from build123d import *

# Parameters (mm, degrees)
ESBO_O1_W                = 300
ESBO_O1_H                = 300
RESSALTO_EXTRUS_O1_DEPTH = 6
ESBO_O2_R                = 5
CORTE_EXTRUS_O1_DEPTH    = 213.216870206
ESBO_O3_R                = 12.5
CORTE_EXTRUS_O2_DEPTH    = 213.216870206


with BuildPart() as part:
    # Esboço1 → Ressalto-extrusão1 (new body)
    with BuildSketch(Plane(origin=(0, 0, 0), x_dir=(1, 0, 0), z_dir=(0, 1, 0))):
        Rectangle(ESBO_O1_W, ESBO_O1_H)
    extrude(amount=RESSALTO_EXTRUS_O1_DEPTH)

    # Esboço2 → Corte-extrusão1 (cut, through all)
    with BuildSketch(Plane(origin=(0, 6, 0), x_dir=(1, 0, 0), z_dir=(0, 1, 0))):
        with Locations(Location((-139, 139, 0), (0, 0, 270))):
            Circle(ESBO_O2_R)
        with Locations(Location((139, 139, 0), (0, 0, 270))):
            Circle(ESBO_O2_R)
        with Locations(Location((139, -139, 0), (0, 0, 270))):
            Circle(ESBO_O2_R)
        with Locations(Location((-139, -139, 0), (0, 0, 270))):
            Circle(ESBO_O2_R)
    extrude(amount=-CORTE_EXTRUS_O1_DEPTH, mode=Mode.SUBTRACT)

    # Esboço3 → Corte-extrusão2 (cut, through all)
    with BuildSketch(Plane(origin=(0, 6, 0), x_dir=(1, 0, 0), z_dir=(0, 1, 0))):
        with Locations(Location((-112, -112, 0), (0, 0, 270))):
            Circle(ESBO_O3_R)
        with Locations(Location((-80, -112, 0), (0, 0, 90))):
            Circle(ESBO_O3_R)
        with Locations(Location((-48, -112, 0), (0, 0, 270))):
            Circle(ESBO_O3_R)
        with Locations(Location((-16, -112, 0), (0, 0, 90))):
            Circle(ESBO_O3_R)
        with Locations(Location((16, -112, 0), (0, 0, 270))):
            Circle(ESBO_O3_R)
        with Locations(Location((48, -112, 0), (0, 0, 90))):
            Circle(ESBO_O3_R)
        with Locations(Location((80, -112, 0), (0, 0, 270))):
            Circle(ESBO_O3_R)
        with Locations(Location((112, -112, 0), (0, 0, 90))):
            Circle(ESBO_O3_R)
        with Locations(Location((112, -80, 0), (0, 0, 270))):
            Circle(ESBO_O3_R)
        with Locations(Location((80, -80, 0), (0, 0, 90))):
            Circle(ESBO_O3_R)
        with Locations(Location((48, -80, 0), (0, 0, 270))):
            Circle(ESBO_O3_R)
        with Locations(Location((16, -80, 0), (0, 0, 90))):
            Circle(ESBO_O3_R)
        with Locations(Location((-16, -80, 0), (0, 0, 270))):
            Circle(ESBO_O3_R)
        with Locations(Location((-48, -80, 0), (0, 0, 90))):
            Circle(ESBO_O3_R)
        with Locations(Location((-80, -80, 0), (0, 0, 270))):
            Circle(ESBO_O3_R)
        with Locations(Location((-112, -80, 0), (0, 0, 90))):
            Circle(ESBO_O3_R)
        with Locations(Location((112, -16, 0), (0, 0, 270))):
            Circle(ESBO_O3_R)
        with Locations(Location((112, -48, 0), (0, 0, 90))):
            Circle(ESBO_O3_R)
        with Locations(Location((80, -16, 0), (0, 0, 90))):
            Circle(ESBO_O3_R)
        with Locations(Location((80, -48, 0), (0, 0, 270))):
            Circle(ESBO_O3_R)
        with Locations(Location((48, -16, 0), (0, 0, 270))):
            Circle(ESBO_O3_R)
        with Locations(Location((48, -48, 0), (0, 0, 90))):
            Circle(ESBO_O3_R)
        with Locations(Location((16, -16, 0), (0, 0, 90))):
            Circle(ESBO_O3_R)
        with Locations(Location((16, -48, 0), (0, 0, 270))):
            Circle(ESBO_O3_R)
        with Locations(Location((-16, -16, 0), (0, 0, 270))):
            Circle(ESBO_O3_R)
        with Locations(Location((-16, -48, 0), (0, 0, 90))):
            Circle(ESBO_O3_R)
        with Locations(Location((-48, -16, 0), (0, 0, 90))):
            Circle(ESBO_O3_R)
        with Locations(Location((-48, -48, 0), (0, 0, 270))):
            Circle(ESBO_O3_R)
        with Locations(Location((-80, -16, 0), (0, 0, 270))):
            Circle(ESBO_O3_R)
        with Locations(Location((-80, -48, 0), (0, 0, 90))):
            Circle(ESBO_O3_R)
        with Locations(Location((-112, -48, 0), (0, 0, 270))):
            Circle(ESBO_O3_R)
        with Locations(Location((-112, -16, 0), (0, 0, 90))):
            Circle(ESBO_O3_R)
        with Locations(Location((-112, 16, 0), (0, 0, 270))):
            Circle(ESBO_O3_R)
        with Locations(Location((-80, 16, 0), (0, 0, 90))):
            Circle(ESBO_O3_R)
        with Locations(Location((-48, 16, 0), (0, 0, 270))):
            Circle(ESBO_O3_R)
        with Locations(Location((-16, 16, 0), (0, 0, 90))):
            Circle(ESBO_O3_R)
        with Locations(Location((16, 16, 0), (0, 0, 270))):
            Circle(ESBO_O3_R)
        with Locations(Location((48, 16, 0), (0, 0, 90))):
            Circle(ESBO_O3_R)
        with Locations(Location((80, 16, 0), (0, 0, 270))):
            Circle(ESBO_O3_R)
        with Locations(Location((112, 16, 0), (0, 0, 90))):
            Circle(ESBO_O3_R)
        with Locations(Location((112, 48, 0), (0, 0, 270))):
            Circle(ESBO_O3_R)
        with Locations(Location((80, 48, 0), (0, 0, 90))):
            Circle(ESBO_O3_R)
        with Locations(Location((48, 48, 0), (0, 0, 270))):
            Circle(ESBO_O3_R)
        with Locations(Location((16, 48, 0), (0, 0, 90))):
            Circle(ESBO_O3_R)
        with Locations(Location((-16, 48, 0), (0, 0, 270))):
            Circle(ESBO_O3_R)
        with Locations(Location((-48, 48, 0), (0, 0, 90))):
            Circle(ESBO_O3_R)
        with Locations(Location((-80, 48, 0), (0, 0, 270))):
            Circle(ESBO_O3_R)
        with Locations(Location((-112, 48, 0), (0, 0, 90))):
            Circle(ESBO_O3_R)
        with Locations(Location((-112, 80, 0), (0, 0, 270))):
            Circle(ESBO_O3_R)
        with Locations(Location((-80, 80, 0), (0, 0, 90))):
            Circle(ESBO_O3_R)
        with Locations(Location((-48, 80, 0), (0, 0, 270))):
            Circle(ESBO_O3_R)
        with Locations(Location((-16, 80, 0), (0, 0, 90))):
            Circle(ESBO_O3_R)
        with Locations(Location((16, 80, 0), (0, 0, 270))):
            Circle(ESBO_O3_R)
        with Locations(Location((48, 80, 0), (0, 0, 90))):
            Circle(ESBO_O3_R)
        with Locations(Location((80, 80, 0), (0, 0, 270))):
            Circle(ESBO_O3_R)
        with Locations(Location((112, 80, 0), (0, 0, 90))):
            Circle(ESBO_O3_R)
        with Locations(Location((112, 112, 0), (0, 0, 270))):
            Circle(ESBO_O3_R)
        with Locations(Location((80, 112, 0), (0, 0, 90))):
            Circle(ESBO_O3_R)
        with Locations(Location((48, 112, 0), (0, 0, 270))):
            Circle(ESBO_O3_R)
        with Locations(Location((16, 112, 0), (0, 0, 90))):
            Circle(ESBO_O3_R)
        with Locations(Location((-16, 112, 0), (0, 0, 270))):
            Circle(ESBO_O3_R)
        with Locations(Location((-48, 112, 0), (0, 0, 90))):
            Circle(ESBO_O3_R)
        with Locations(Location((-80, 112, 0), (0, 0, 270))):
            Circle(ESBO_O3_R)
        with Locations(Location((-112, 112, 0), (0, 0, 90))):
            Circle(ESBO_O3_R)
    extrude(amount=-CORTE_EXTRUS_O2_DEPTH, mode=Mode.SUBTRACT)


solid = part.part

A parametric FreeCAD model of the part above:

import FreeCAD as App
import Part
import Sketcher

V = App.Vector
Q = App.Units.Quantity


def add_polygon(sketch, points):
    """Adds a closed chain of lines whose ends are joined by coincident constraints."""
    first, n = sketch.GeometryCount, len(points)
    for a, b in zip(points, points[1:] + points[:1]):
        sketch.addGeometry(Part.LineSegment(App.Vector(*a, 0), App.Vector(*b, 0)), False)
    for i in range(n):
        sketch.addConstraint(Sketcher.Constraint("Coincident", first + i, 2, first + (i + 1) % n, 1))

doc = App.newDocument("Part")
body = doc.addObject("PartDesign::Body", "Body")

# Sketch on XZ plane
sketch1 = body.newObject("Sketcher::SketchObject", "Sketch")
sketch1.AttachmentSupport = (doc.getObject("XZ_Plane"), [""])
sketch1.MapMode = "FlatFace"
add_polygon(sketch1, [(-150, -150), (-150, 150), (150, 150), (150, -150)])  # lines 0-3
sketch1.addConstraint(Sketcher.Constraint("Vertical", 0))
sketch1.addConstraint(Sketcher.Constraint("Horizontal", 1))
sketch1.addConstraint(Sketcher.Constraint("Vertical", 2))
sketch1.addConstraint(Sketcher.Constraint("Horizontal", 3))
sketch1.addConstraint(Sketcher.Constraint("Symmetric", 0, 2, 2, 2, -1, 1))
sketch1.addConstraint(Sketcher.Constraint("Equal", 3, 0))
sketch1.addConstraint(Sketcher.Constraint("DistanceX", 1, 1, 1, 2, Q("300 mm")))
pad1 = body.newObject("PartDesign::Pad", "Pad")
pad1.Profile = sketch1
pad1.Length = 6
pad1.Reversed = True

# Sketch on XZ plane
sketch2 = body.newObject("Sketcher::SketchObject", "Sketch001")
sketch2.AttachmentSupport = (doc.getObject("XZ_Plane"), [""])
sketch2.MapMode = "FlatFace"
sketch2.AttachmentOffset = App.Placement(V(0, 0, -6), App.Rotation())
sketch2.addGeometry(Part.Circle(V(-139, -139, 0), V(0, 0, 1), 5), False)
sketch2.addGeometry(Part.Circle(V(139, -139, 0), V(0, 0, 1), 5), False)
sketch2.addGeometry(Part.Circle(V(139, 139, 0), V(0, 0, 1), 5), False)
sketch2.addGeometry(Part.Circle(V(-139, 139, 0), V(0, 0, 1), 5), False)
sketch2.addConstraint(Sketcher.Constraint("Equal", 0, 1))
sketch2.addConstraint(Sketcher.Constraint("Equal", 1, 2))
sketch2.addConstraint(Sketcher.Constraint("Equal", 2, 3))
sketch2.addConstraint(Sketcher.Constraint("Symmetric", 0, 3, 2, 3, -1, 1))
sketch2.addConstraint(Sketcher.Constraint("Symmetric", 1, 3, 3, 3, -1, 1))
sketch2.addConstraint(Sketcher.Constraint("Symmetric", 0, 3, 1, 3, -2))
sketch2.addConstraint(Sketcher.Constraint("Diameter", 0, Q("10 mm")))
sketch2.addConstraint(Sketcher.Constraint("DistanceX", 0, 3, -1, 1, Q("139 mm")))
sketch2.addConstraint(Sketcher.Constraint("DistanceY", 0, 3, -1, 1, Q("139 mm")))
pocket1 = body.newObject("PartDesign::Pocket", "Pocket")
pocket1.Profile = sketch2
pocket1.Type = "ThroughAll"
pocket1.Reversed = True

# Sketch on XZ plane
sketch3 = body.newObject("Sketcher::SketchObject", "Sketch002")
sketch3.AttachmentSupport = (doc.getObject("XZ_Plane"), [""])
sketch3.MapMode = "FlatFace"
sketch3.AttachmentOffset = App.Placement(V(0, 0, -6), App.Rotation())
sketch3.addGeometry(Part.Circle(V(-112, 112, 0), V(0, 0, 1), 12), False)
sketch3.addGeometry(Part.Circle(V(-80, 112, 0), V(0, 0, 1), 12), False)
sketch3.addGeometry(Part.Circle(V(-48, 112, 0), V(0, 0, 1), 12), False)
sketch3.addGeometry(Part.Circle(V(-16, 112, 0), V(0, 0, 1), 12), False)
sketch3.addGeometry(Part.Circle(V(16, 112, 0), V(0, 0, 1), 12), False)
sketch3.addGeometry(Part.Circle(V(48, 112, 0), V(0, 0, 1), 12), False)
sketch3.addGeometry(Part.Circle(V(80, 112, 0), V(0, 0, 1), 12), False)
sketch3.addGeometry(Part.Circle(V(112, 112, 0), V(0, 0, 1), 12), False)
sketch3.addGeometry(Part.Circle(V(112, 80, 0), V(0, 0, 1), 12), False)
sketch3.addGeometry(Part.Circle(V(80, 80, 0), V(0, 0, 1), 12), False)
sketch3.addGeometry(Part.Circle(V(48, 80, 0), V(0, 0, 1), 12), False)
sketch3.addGeometry(Part.Circle(V(16, 80, 0), V(0, 0, 1), 12), False)
sketch3.addGeometry(Part.Circle(V(-16, 80, 0), V(0, 0, 1), 12), False)
sketch3.addGeometry(Part.Circle(V(-48, 80, 0), V(0, 0, 1), 12), False)
sketch3.addGeometry(Part.Circle(V(-80, 80, 0), V(0, 0, 1), 12), False)
sketch3.addGeometry(Part.Circle(V(-112, 80, 0), V(0, 0, 1), 12), False)
sketch3.addGeometry(Part.Circle(V(112, 16, 0), V(0, 0, 1), 12), False)
sketch3.addGeometry(Part.Circle(V(112, 48, 0), V(0, 0, 1), 12), False)
sketch3.addGeometry(Part.Circle(V(80, 16, 0), V(0, 0, 1), 12), False)
sketch3.addGeometry(Part.Circle(V(80, 48, 0), V(0, 0, 1), 12), False)
sketch3.addGeometry(Part.Circle(V(48, 16, 0), V(0, 0, 1), 12), False)
sketch3.addGeometry(Part.Circle(V(48, 48, 0), V(0, 0, 1), 12), False)
sketch3.addGeometry(Part.Circle(V(16, 16, 0), V(0, 0, 1), 12), False)
sketch3.addGeometry(Part.Circle(V(16, 48, 0), V(0, 0, 1), 12), False)
sketch3.addGeometry(Part.Circle(V(-16, 16, 0), V(0, 0, 1), 12), False)
sketch3.addGeometry(Part.Circle(V(-16, 48, 0), V(0, 0, 1), 12), False)
sketch3.addGeometry(Part.Circle(V(-48, 16, 0), V(0, 0, 1), 12), False)
sketch3.addGeometry(Part.Circle(V(-48, 48, 0), V(0, 0, 1), 12), False)
sketch3.addGeometry(Part.Circle(V(-80, 16, 0), V(0, 0, 1), 12), False)
sketch3.addGeometry(Part.Circle(V(-80, 48, 0), V(0, 0, 1), 12), False)
sketch3.addGeometry(Part.Circle(V(-112, 48, 0), V(0, 0, 1), 12), False)
sketch3.addGeometry(Part.Circle(V(-112, 16, 0), V(0, 0, 1), 12), False)
sketch3.addGeometry(Part.Circle(V(-112, -16, 0), V(0, 0, 1), 12), False)
sketch3.addGeometry(Part.Circle(V(-80, -16, 0), V(0, 0, 1), 12), False)
sketch3.addGeometry(Part.Circle(V(-48, -16, 0), V(0, 0, 1), 12), False)
sketch3.addGeometry(Part.Circle(V(-16, -16, 0), V(0, 0, 1), 12), False)
sketch3.addGeometry(Part.Circle(V(16, -16, 0), V(0, 0, 1), 12), False)
sketch3.addGeometry(Part.Circle(V(48, -16, 0), V(0, 0, 1), 12), False)
sketch3.addGeometry(Part.Circle(V(80, -16, 0), V(0, 0, 1), 12), False)
sketch3.addGeometry(Part.Circle(V(112, -16, 0), V(0, 0, 1), 12), False)
sketch3.addGeometry(Part.Circle(V(112, -48, 0), V(0, 0, 1), 12), False)
sketch3.addGeometry(Part.Circle(V(80, -48, 0), V(0, 0, 1), 12), False)
sketch3.addGeometry(Part.Circle(V(48, -48, 0), V(0, 0, 1), 12), False)
sketch3.addGeometry(Part.Circle(V(16, -48, 0), V(0, 0, 1), 12), False)
sketch3.addGeometry(Part.Circle(V(-16, -48, 0), V(0, 0, 1), 12), False)
sketch3.addGeometry(Part.Circle(V(-48, -48, 0), V(0, 0, 1), 12), False)
sketch3.addGeometry(Part.Circle(V(-80, -48, 0), V(0, 0, 1), 12), False)
sketch3.addGeometry(Part.Circle(V(-112, -48, 0), V(0, 0, 1), 12), False)
sketch3.addGeometry(Part.Circle(V(-112, -80, 0), V(0, 0, 1), 12), False)
sketch3.addGeometry(Part.Circle(V(-80, -80, 0), V(0, 0, 1), 12), False)
sketch3.addGeometry(Part.Circle(V(-48, -80, 0), V(0, 0, 1), 12), False)
sketch3.addGeometry(Part.Circle(V(-16, -80, 0), V(0, 0, 1), 12), False)
sketch3.addGeometry(Part.Circle(V(16, -80, 0), V(0, 0, 1), 12), False)
sketch3.addGeometry(Part.Circle(V(48, -80, 0), V(0, 0, 1), 12), False)
sketch3.addGeometry(Part.Circle(V(80, -80, 0), V(0, 0, 1), 12), False)
sketch3.addGeometry(Part.Circle(V(112, -80, 0), V(0, 0, 1), 12), False)
sketch3.addGeometry(Part.Circle(V(112, -112, 0), V(0, 0, 1), 12), False)
sketch3.addGeometry(Part.Circle(V(80, -112, 0), V(0, 0, 1), 12), False)
sketch3.addGeometry(Part.Circle(V(48, -112, 0), V(0, 0, 1), 12), False)
sketch3.addGeometry(Part.Circle(V(16, -112, 0), V(0, 0, 1), 12), False)
sketch3.addGeometry(Part.Circle(V(-16, -112, 0), V(0, 0, 1), 12), False)
sketch3.addGeometry(Part.Circle(V(-48, -112, 0), V(0, 0, 1), 12), False)
sketch3.addGeometry(Part.Circle(V(-80, -112, 0), V(0, 0, 1), 12), False)
sketch3.addGeometry(Part.Circle(V(-112, -112, 0), V(0, 0, 1), 12), False)
sketch3.addConstraint(Sketcher.Constraint("Equal", 0, 1))
sketch3.addConstraint(Sketcher.Constraint("Equal", 1, 2))
sketch3.addConstraint(Sketcher.Constraint("Equal", 2, 3))
sketch3.addConstraint(Sketcher.Constraint("Equal", 3, 4))
sketch3.addConstraint(Sketcher.Constraint("Equal", 4, 5))
sketch3.addConstraint(Sketcher.Constraint("Equal", 5, 6))
sketch3.addConstraint(Sketcher.Constraint("Equal", 6, 7))
sketch3.addConstraint(Sketcher.Constraint("Equal", 7, 8))
sketch3.addConstraint(Sketcher.Constraint("Equal", 8, 9))
sketch3.addConstraint(Sketcher.Constraint("Equal", 9, 10))
sketch3.addConstraint(Sketcher.Constraint("Equal", 10, 11))
sketch3.addConstraint(Sketcher.Constraint("Equal", 11, 12))
sketch3.addConstraint(Sketcher.Constraint("Equal", 12, 13))
sketch3.addConstraint(Sketcher.Constraint("Equal", 13, 14))
sketch3.addConstraint(Sketcher.Constraint("Equal", 14, 15))
sketch3.addConstraint(Sketcher.Constraint("Equal", 15, 16))
sketch3.addConstraint(Sketcher.Constraint("Equal", 16, 17))
sketch3.addConstraint(Sketcher.Constraint("Equal", 17, 18))
sketch3.addConstraint(Sketcher.Constraint("Equal", 18, 19))
sketch3.addConstraint(Sketcher.Constraint("Equal", 19, 20))
sketch3.addConstraint(Sketcher.Constraint("Equal", 20, 21))
sketch3.addConstraint(Sketcher.Constraint("Equal", 21, 22))
sketch3.addConstraint(Sketcher.Constraint("Equal", 22, 23))
sketch3.addConstraint(Sketcher.Constraint("Equal", 23, 24))
sketch3.addConstraint(Sketcher.Constraint("Equal", 24, 25))
sketch3.addConstraint(Sketcher.Constraint("Equal", 25, 26))
sketch3.addConstraint(Sketcher.Constraint("Equal", 26, 27))
sketch3.addConstraint(Sketcher.Constraint("Equal", 27, 28))
sketch3.addConstraint(Sketcher.Constraint("Equal", 28, 29))
sketch3.addConstraint(Sketcher.Constraint("Equal", 29, 30))
sketch3.addConstraint(Sketcher.Constraint("Equal", 30, 31))
sketch3.addConstraint(Sketcher.Constraint("Equal", 31, 32))
sketch3.addConstraint(Sketcher.Constraint("Equal", 32, 33))
sketch3.addConstraint(Sketcher.Constraint("Equal", 33, 34))
sketch3.addConstraint(Sketcher.Constraint("Equal", 34, 35))
sketch3.addConstraint(Sketcher.Constraint("Equal", 35, 36))
sketch3.addConstraint(Sketcher.Constraint("Equal", 36, 37))
sketch3.addConstraint(Sketcher.Constraint("Equal", 37, 38))
sketch3.addConstraint(Sketcher.Constraint("Equal", 38, 39))
sketch3.addConstraint(Sketcher.Constraint("Equal", 39, 40))
sketch3.addConstraint(Sketcher.Constraint("Equal", 40, 41))
sketch3.addConstraint(Sketcher.Constraint("Equal", 41, 42))
sketch3.addConstraint(Sketcher.Constraint("Equal", 42, 43))
sketch3.addConstraint(Sketcher.Constraint("Equal", 43, 44))
sketch3.addConstraint(Sketcher.Constraint("Equal", 44, 45))
sketch3.addConstraint(Sketcher.Constraint("Equal", 45, 46))
sketch3.addConstraint(Sketcher.Constraint("Equal", 46, 47))
sketch3.addConstraint(Sketcher.Constraint("Equal", 47, 48))
sketch3.addConstraint(Sketcher.Constraint("Equal", 48, 49))
sketch3.addConstraint(Sketcher.Constraint("Equal", 49, 50))
sketch3.addConstraint(Sketcher.Constraint("Equal", 50, 51))
sketch3.addConstraint(Sketcher.Constraint("Equal", 51, 52))
sketch3.addConstraint(Sketcher.Constraint("Equal", 52, 53))
sketch3.addConstraint(Sketcher.Constraint("Equal", 53, 54))
sketch3.addConstraint(Sketcher.Constraint("Equal", 54, 55))
sketch3.addConstraint(Sketcher.Constraint("Equal", 55, 56))
sketch3.addConstraint(Sketcher.Constraint("Equal", 56, 57))
sketch3.addConstraint(Sketcher.Constraint("Equal", 57, 58))
sketch3.addConstraint(Sketcher.Constraint("Equal", 58, 59))
sketch3.addConstraint(Sketcher.Constraint("Equal", 59, 60))
sketch3.addConstraint(Sketcher.Constraint("Equal", 60, 61))
sketch3.addConstraint(Sketcher.Constraint("Equal", 61, 62))
sketch3.addConstraint(Sketcher.Constraint("Equal", 62, 63))
sketch3.addConstraint(Sketcher.Constraint("Symmetric", 16, 3, 32, 3, -1, 1))
sketch3.addConstraint(Sketcher.Constraint("Symmetric", 18, 3, 33, 3, -1, 1))
sketch3.addConstraint(Sketcher.Constraint("Symmetric", 20, 3, 34, 3, -1, 1))
sketch3.addConstraint(Sketcher.Constraint("Symmetric", 22, 3, 35, 3, -1, 1))
sketch3.addConstraint(Sketcher.Constraint("Symmetric", 24, 3, 36, 3, -1, 1))
sketch3.addConstraint(Sketcher.Constraint("Symmetric", 26, 3, 37, 3, -1, 1))
sketch3.addConstraint(Sketcher.Constraint("Symmetric", 28, 3, 38, 3, -1, 1))
sketch3.addConstraint(Sketcher.Constraint("Symmetric", 31, 3, 39, 3, -1, 1))
sketch3.addConstraint(Sketcher.Constraint("Symmetric", 30, 3, 40, 3, -1, 1))
sketch3.addConstraint(Sketcher.Constraint("Symmetric", 29, 3, 41, 3, -1, 1))
sketch3.addConstraint(Sketcher.Constraint("Symmetric", 27, 3, 42, 3, -1, 1))
sketch3.addConstraint(Sketcher.Constraint("Symmetric", 25, 3, 43, 3, -1, 1))
sketch3.addConstraint(Sketcher.Constraint("Symmetric", 23, 3, 44, 3, -1, 1))
sketch3.addConstraint(Sketcher.Constraint("Symmetric", 21, 3, 45, 3, -1, 1))
sketch3.addConstraint(Sketcher.Constraint("Symmetric", 19, 3, 46, 3, -1, 1))
sketch3.addConstraint(Sketcher.Constraint("Symmetric", 17, 3, 47, 3, -1, 1))
sketch3.addConstraint(Sketcher.Constraint("Symmetric", 8, 3, 48, 3, -1, 1))
sketch3.addConstraint(Sketcher.Constraint("Symmetric", 9, 3, 49, 3, -1, 1))
sketch3.addConstraint(Sketcher.Constraint("Symmetric", 10, 3, 50, 3, -1, 1))
sketch3.addConstraint(Sketcher.Constraint("Symmetric", 11, 3, 51, 3, -1, 1))
sketch3.addConstraint(Sketcher.Constraint("Symmetric", 12, 3, 52, 3, -1, 1))
sketch3.addConstraint(Sketcher.Constraint("Symmetric", 13, 3, 53, 3, -1, 1))
sketch3.addConstraint(Sketcher.Constraint("Symmetric", 14, 3, 54, 3, -1, 1))
sketch3.addConstraint(Sketcher.Constraint("Symmetric", 15, 3, 55, 3, -1, 1))
sketch3.addConstraint(Sketcher.Constraint("Symmetric", 0, 3, 56, 3, -1, 1))
sketch3.addConstraint(Sketcher.Constraint("Symmetric", 1, 3, 57, 3, -1, 1))
sketch3.addConstraint(Sketcher.Constraint("Symmetric", 2, 3, 58, 3, -1, 1))
sketch3.addConstraint(Sketcher.Constraint("Symmetric", 3, 3, 59, 3, -1, 1))
sketch3.addConstraint(Sketcher.Constraint("Symmetric", 4, 3, 60, 3, -1, 1))
sketch3.addConstraint(Sketcher.Constraint("Symmetric", 5, 3, 61, 3, -1, 1))
sketch3.addConstraint(Sketcher.Constraint("Symmetric", 6, 3, 62, 3, -1, 1))
sketch3.addConstraint(Sketcher.Constraint("Symmetric", 7, 3, 63, 3, -1, 1))
sketch3.addConstraint(Sketcher.Constraint("Symmetric", 3, 3, 4, 3, -2))
sketch3.addConstraint(Sketcher.Constraint("Symmetric", 2, 3, 5, 3, -2))
sketch3.addConstraint(Sketcher.Constraint("Symmetric", 1, 3, 6, 3, -2))
sketch3.addConstraint(Sketcher.Constraint("Symmetric", 0, 3, 7, 3, -2))
sketch3.addConstraint(Sketcher.Constraint("Symmetric", 11, 3, 12, 3, -2))
sketch3.addConstraint(Sketcher.Constraint("Symmetric", 10, 3, 13, 3, -2))
sketch3.addConstraint(Sketcher.Constraint("Symmetric", 9, 3, 14, 3, -2))
sketch3.addConstraint(Sketcher.Constraint("Symmetric", 8, 3, 15, 3, -2))
sketch3.addConstraint(Sketcher.Constraint("Symmetric", 22, 3, 24, 3, -2))
sketch3.addConstraint(Sketcher.Constraint("Symmetric", 23, 3, 25, 3, -2))
sketch3.addConstraint(Sketcher.Constraint("Symmetric", 20, 3, 26, 3, -2))
sketch3.addConstraint(Sketcher.Constraint("Symmetric", 21, 3, 27, 3, -2))
sketch3.addConstraint(Sketcher.Constraint("Symmetric", 18, 3, 28, 3, -2))
sketch3.addConstraint(Sketcher.Constraint("Symmetric", 19, 3, 29, 3, -2))
sketch3.addConstraint(Sketcher.Constraint("Symmetric", 17, 3, 30, 3, -2))
sketch3.addConstraint(Sketcher.Constraint("Symmetric", 16, 3, 31, 3, -2))
sketch3.addConstraint(Sketcher.Constraint("Horizontal", 0, 3, 1, 3))
sketch3.addConstraint(Sketcher.Constraint("Horizontal", 1, 3, 2, 3))
sketch3.addConstraint(Sketcher.Constraint("Horizontal", 2, 3, 3, 3))
sketch3.addConstraint(Sketcher.Constraint("Horizontal", 8, 3, 9, 3))
sketch3.addConstraint(Sketcher.Constraint("Horizontal", 9, 3, 10, 3))
sketch3.addConstraint(Sketcher.Constraint("Horizontal", 10, 3, 11, 3))
sketch3.addConstraint(Sketcher.Constraint("Horizontal", 16, 3, 18, 3))
sketch3.addConstraint(Sketcher.Constraint("Horizontal", 17, 3, 19, 3))
sketch3.addConstraint(Sketcher.Constraint("Horizontal", 18, 3, 20, 3))
sketch3.addConstraint(Sketcher.Constraint("Horizontal", 19, 3, 21, 3))
sketch3.addConstraint(Sketcher.Constraint("Horizontal", 20, 3, 22, 3))
sketch3.addConstraint(Sketcher.Constraint("Horizontal", 21, 3, 23, 3))
sketch3.addConstraint(Sketcher.Constraint("Vertical", 7, 3, 8, 3))
sketch3.addConstraint(Sketcher.Constraint("Vertical", 6, 3, 9, 3))
sketch3.addConstraint(Sketcher.Constraint("Vertical", 5, 3, 10, 3))
sketch3.addConstraint(Sketcher.Constraint("Vertical", 4, 3, 11, 3))
sketch3.addConstraint(Sketcher.Constraint("Vertical", 8, 3, 16, 3))
sketch3.addConstraint(Sketcher.Constraint("Vertical", 16, 3, 17, 3))
sketch3.addConstraint(Sketcher.Constraint("Vertical", 9, 3, 18, 3))
sketch3.addConstraint(Sketcher.Constraint("Vertical", 18, 3, 19, 3))
sketch3.addConstraint(Sketcher.Constraint("Vertical", 10, 3, 20, 3))
sketch3.addConstraint(Sketcher.Constraint("Vertical", 20, 3, 21, 3))
sketch3.addConstraint(Sketcher.Constraint("Vertical", 11, 3, 22, 3))
sketch3.addConstraint(Sketcher.Constraint("Vertical", 22, 3, 23, 3))
sketch3.addConstraint(Sketcher.Constraint("Diameter", 0, Q("25 mm")))
sketch3.addConstraint(Sketcher.Constraint("DistanceX", 0, 3, -1, 1, Q("112 mm")))
sketch3.addConstraint(Sketcher.Constraint("DistanceY", -1, 1, 0, 3, Q("112 mm")))
sketch3.addConstraint(Sketcher.Constraint("DistanceX", 1, 3, -1, 1, Q("80 mm")))
sketch3.addConstraint(Sketcher.Constraint("DistanceX", 2, 3, -1, 1, Q("48 mm")))
sketch3.addConstraint(Sketcher.Constraint("DistanceX", 3, 3, -1, 1, Q("16 mm")))
sketch3.addConstraint(Sketcher.Constraint("DistanceY", -1, 1, 8, 3, Q("80 mm")))
sketch3.addConstraint(Sketcher.Constraint("DistanceY", -1, 1, 16, 3, Q("16 mm")))
sketch3.addConstraint(Sketcher.Constraint("DistanceY", -1, 1, 17, 3, Q("48 mm")))
pocket2 = body.newObject("PartDesign::Pocket", "Pocket001")
pocket2.Profile = sketch3
pocket2.Type = "ThroughAll"
pocket2.Reversed = True

doc.recompute()
